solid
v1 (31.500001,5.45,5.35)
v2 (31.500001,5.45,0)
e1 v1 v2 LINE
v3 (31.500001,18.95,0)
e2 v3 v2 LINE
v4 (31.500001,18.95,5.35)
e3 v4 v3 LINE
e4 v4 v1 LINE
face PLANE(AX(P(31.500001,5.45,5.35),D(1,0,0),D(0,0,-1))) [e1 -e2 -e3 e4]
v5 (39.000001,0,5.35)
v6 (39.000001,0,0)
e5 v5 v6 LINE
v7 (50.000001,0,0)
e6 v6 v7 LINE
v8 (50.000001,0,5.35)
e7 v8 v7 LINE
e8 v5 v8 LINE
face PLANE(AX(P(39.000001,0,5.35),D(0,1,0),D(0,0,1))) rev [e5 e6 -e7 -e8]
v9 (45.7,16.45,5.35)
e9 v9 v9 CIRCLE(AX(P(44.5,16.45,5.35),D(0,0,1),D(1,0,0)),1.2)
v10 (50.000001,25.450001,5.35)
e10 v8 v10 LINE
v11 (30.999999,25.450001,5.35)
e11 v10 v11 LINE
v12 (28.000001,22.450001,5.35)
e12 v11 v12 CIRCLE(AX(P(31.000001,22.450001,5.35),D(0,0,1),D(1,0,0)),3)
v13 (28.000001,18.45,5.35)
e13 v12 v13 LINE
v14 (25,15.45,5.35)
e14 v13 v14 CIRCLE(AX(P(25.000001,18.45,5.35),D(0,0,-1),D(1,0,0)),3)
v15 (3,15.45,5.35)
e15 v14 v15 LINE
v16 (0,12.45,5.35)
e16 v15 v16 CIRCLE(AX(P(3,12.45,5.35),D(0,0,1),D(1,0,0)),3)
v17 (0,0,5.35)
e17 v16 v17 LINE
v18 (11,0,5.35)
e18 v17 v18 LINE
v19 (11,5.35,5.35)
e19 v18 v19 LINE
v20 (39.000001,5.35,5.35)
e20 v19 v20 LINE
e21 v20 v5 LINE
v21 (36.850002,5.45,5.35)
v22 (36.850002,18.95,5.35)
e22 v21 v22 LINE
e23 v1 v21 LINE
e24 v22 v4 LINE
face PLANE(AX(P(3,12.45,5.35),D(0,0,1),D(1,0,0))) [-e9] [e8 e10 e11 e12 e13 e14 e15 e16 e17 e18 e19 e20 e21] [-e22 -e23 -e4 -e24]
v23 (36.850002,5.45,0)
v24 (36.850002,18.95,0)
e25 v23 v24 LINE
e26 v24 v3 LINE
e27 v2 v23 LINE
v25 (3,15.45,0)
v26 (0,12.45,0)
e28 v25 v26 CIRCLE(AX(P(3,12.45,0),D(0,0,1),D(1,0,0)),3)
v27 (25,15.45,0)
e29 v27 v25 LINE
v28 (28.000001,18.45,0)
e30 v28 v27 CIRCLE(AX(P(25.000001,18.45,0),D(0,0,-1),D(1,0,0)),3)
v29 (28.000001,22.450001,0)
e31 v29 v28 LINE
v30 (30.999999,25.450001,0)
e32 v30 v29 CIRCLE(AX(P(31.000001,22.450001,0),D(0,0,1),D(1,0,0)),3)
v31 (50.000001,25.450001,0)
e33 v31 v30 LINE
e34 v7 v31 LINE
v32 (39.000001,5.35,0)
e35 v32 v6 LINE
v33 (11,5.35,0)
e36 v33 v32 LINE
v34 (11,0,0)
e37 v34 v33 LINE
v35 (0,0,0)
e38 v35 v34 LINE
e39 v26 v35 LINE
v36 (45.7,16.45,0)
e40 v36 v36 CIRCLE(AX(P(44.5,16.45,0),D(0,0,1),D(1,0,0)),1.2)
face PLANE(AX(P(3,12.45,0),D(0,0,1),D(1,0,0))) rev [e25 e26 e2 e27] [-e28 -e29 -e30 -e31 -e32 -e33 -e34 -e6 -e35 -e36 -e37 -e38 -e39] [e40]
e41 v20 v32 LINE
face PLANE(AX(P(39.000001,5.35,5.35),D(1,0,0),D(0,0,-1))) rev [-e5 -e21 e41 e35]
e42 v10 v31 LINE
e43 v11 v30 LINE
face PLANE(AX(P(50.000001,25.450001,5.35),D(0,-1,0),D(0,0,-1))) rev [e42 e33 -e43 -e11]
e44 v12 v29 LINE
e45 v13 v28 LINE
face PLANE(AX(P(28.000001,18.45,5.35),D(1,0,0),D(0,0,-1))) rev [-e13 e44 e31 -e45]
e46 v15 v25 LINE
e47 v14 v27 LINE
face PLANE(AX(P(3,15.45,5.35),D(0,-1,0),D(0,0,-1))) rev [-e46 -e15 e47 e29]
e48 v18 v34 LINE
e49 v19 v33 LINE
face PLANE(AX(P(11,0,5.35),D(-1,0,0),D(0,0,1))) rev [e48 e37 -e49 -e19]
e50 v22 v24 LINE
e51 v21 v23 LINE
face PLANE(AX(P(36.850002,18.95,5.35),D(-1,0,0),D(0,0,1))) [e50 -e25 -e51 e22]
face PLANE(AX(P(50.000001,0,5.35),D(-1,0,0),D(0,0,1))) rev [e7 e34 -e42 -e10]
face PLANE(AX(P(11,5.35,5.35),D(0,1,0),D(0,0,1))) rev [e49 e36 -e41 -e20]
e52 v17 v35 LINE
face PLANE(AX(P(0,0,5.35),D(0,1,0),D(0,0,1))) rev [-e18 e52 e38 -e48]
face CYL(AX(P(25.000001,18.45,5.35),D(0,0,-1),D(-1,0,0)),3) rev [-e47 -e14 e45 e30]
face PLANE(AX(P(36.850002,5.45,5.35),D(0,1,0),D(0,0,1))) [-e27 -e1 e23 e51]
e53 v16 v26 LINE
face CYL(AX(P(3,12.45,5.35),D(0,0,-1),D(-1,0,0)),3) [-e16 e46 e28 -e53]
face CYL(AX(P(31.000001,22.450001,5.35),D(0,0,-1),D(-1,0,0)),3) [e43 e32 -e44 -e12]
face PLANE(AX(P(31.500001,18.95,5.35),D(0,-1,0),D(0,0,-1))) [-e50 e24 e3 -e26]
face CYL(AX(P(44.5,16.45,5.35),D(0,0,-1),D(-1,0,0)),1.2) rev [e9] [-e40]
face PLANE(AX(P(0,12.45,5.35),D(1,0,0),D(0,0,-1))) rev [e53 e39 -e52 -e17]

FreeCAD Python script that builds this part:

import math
import FreeCAD as App
import Part
import Sketcher

V = App.Vector

doc = App.newDocument("Part")
body = doc.addObject("PartDesign::Body", "Body")

# Sketch on XY plane
sketch1 = body.newObject("Sketcher::SketchObject", "Sketch")
sketch1.AttachmentSupport = (doc.getObject("XY_Plane"), [""])
sketch1.MapMode = "FlatFace"
sketch1.addGeometry([
    Part.LineSegment(V(25, 15.4, 0), V(3, 15.4, 0)),  # 0
    Part.ArcOfCircle(Part.Circle(V(3, 12.4, 0), V(0, 0, 1), 3), math.radians(90), math.radians(180)),  # 1
    Part.LineSegment(V(0, 12.4, 0), V(0, 0, 0)),  # 2
    Part.LineSegment(V(0, 0, 0), V(11, 0, 0)),  # 3
    Part.LineSegment(V(11, 0, 0), V(11, 5.4, 0)),  # 4
    Part.LineSegment(V(11, 5.4, 0), V(39, 5.4, 0)),  # 5
    Part.LineSegment(V(39, 5.4, 0), V(39, 0, 0)),  # 6
    Part.LineSegment(V(39, 0, 0), V(50, 0, 0)),  # 7
    Part.LineSegment(V(50, 0, 0), V(50, 25.5, 0)),  # 8
    Part.LineSegment(V(50, 25.5, 0), V(31, 25.5, 0)),  # 9
    Part.ArcOfCircle(Part.Circle(V(31, 22.5, 0), V(0, 0, 1), 3), math.radians(90), math.radians(180)),  # 10
    Part.LineSegment(V(28, 22.5, 0), V(28, 18.4, 0)),  # 11
    Part.ArcOfCircle(Part.Circle(V(25, 18.4, 0), V(0, 0, 1), 3), math.radians(-90), math.radians(0)),  # 12
    Part.Circle(V(44.5, 16.4, 0), V(0, 0, 1), 1.2),  # 13
    Part.LineSegment(V(31.5, 5.5, 0), V(31.5, 19, 0)),  # 14
    Part.LineSegment(V(31.5, 19, 0), V(36.9, 19, 0)),  # 15
    Part.LineSegment(V(36.9, 19, 0), V(36.9, 5.5, 0)),  # 16
    Part.LineSegment(V(36.9, 5.5, 0), V(31.5, 5.5, 0)),  # 17
], False)
sketch1.addConstraint([
    Sketcher.Constraint("Tangent", 0, 2, 1, 1),
    Sketcher.Constraint("Tangent", 1, 2, 2, 1),
    Sketcher.Constraint("Coincident", 2, 2, 3, 1),
    Sketcher.Constraint("Coincident", 3, 2, 4, 1),
    Sketcher.Constraint("Coincident", 4, 2, 5, 1),
    Sketcher.Constraint("Coincident", 5, 2, 6, 1),
    Sketcher.Constraint("Coincident", 6, 2, 7, 1),
    Sketcher.Constraint("Coincident", 7, 2, 8, 1),
    Sketcher.Constraint("Coincident", 8, 2, 9, 1),
    Sketcher.Constraint("Tangent", 9, 2, 10, 1),
    Sketcher.Constraint("Tangent", 10, 2, 11, 1),
    Sketcher.Constraint("Tangent", 11, 2, 12, 2),
    Sketcher.Constraint("Tangent", 12, 1, 0, 1),
    Sketcher.Constraint("Coincident", 14, 2, 15, 1),
    Sketcher.Constraint("Coincident", 15, 2, 16, 1),
    Sketcher.Constraint("Coincident", 16, 2, 17, 1),
    Sketcher.Constraint("Coincident", 17, 2, 14, 1),
    Sketcher.Constraint("Horizontal", 0),
    Sketcher.Constraint("Vertical", 2),
    Sketcher.Constraint("Horizontal", 3),
    Sketcher.Constraint("Vertical", 4),
    Sketcher.Constraint("Horizontal", 5),
    Sketcher.Constraint("Vertical", 6),
    Sketcher.Constraint("Horizontal", 7),
    Sketcher.Constraint("Vertical", 8),
    Sketcher.Constraint("Horizontal", 9),
    Sketcher.Constraint("Vertical", 11),
    Sketcher.Constraint("Vertical", 14),
    Sketcher.Constraint("Horizontal", 15),
    Sketcher.Constraint("Vertical", 16),
    Sketcher.Constraint("Horizontal", 17),
    Sketcher.Constraint("Coincident", 2, 2, -1, 1),
    Sketcher.Constraint("Equal", 1, 10),
    Sketcher.Constraint("Equal", 10, 12),
    Sketcher.Constraint("PointOnObject", 6, 2, -1),
    Sketcher.Constraint("Equal", 3, 7),
    Sketcher.Constraint("Equal", 17, 4),
    Sketcher.Constraint("Radius", 1, 3.0),
    Sketcher.Constraint("Diameter", 13, 2.4),
    Sketcher.Constraint("DistanceX", 0, 2, 0, 1, 22.0),
    Sketcher.Constraint("DistanceX", 3, 1, 3, 2, 11.0),
    Sketcher.Constraint("DistanceX", 5, 1, 5, 2, 28.000001),
    Sketcher.Constraint("DistanceY", 11, 2, 11, 1, 4.000001),
    Sketcher.Constraint("DistanceY", 14, 1, 14, 2, 13.5),
    Sketcher.Constraint("DistanceY", 13, 3, 10, 3, 6.000001),
    Sketcher.Constraint("DistanceY", 16, 2, 13, 3, 11.0),
    Sketcher.Constraint("DistanceX", 15, 1, 15, 2, 5.350001),
    Sketcher.Constraint("DistanceY", 2, 2, 2, 1, 12.45),
    Sketcher.Constraint("DistanceX", -1, 1, 13, 3, 44.5),
    Sketcher.Constraint("DistanceX", -1, 1, 14, 2, 31.500001),
])
pad1 = body.newObject("PartDesign::Pad", "Pad")
pad1.Profile = sketch1
pad1.Length = 5.35

doc.recompute()
